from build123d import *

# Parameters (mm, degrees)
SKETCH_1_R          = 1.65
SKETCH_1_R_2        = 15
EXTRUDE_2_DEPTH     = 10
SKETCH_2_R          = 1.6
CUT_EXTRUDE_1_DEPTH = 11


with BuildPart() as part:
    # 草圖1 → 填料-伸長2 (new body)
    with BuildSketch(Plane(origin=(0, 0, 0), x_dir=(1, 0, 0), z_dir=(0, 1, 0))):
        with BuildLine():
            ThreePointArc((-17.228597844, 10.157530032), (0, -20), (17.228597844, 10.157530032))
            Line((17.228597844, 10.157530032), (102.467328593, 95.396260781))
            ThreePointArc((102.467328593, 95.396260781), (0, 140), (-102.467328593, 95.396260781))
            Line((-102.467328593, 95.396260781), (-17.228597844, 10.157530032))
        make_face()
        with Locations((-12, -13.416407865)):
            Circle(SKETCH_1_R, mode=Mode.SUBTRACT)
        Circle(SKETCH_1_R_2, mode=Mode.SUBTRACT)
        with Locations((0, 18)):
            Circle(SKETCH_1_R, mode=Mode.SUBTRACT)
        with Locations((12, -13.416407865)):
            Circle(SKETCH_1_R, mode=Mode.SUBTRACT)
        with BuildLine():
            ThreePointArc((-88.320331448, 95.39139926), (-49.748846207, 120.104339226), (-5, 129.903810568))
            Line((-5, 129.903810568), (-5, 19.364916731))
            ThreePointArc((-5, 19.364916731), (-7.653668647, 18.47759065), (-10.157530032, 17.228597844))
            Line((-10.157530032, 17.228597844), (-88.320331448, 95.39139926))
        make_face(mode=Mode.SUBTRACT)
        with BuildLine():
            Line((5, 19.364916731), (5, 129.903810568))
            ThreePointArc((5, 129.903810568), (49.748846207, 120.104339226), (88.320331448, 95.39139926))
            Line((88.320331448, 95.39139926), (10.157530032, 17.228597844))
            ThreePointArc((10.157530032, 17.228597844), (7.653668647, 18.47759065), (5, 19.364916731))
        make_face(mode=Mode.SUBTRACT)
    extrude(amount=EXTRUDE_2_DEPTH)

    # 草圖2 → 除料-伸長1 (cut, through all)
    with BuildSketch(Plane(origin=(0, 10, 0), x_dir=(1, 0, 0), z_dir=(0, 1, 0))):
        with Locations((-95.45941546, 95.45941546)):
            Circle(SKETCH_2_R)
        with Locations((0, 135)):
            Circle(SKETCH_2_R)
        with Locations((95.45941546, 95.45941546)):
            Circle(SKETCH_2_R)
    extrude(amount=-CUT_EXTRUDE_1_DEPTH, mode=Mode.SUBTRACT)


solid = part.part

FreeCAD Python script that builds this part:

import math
import FreeCAD as App
import Part
import Sketcher

V = App.Vector

doc = App.newDocument("Part")
body = doc.addObject("PartDesign::Body", "Body")

# Sketch on XZ plane
sketch1 = body.newObject("Sketcher::SketchObject", "Sketch")
sketch1.AttachmentSupport = (doc.getObject("XZ_Plane"), [""])
sketch1.MapMode = "FlatFace"
sketch1.addGeometry([
    Part.ArcOfCircle(Part.Circle(V(0, 0, 0), V(0, 0, 1), 20), math.radians(-31), math.radians(211)),  # 0
    Part.LineSegment(V(17.2, -10.2, 0), V(102.5, -95.4, 0)),  # 1
    Part.ArcOfCircle(Part.Circle(V(0, 0, 0), V(0, 0, 1), 140), math.radians(-137), math.radians(-43)),  # 2
    Part.LineSegment(V(-102.5, -95.4, 0), V(-17.2, -10.2, 0)),  # 3
    Part.Circle(V(-12, 13.4, 0), V(0, 0, 1), 1.6),  # 4
    Part.Circle(V(12, 13.4, 0), V(0, 0, 1), 1.6),  # 5
    Part.Circle(V(0, 0, 0), V(0, 0, 1), 15),  # 6
    Part.Circle(V(0, -18, 0), V(0, 0, 1), 1.6),  # 7
    Part.LineSegment(V(-10.2, -17.2, 0), V(-88.3, -95.4, 0)),  # 8
    Part.ArcOfCircle(Part.Circle(V(0, 0, 0), V(0, 0, 1), 130), math.radians(-133), math.radians(-92)),  # 9
    Part.LineSegment(V(-5, -129.9, 0), V(-5, -19.4, 0)),  # 10
    Part.ArcOfCircle(Part.Circle(V(0, 0, 0), V(0, 0, 1), 20), math.radians(-120.52), math.radians(-104.48)),  # 11
    Part.ArcOfCircle(Part.Circle(V(0, 0, 0), V(0, 0, 1), 20), math.radians(-75.52), math.radians(-59.48)),  # 12
    Part.LineSegment(V(5, -19.4, 0), V(5, -129.9, 0)),  # 13
    Part.ArcOfCircle(Part.Circle(V(0, 0, 0), V(0, 0, 1), 130), math.radians(-88), math.radians(-47)),  # 14
    Part.LineSegment(V(88.3, -95.4, 0), V(10.2, -17.2, 0)),  # 15
], False)
sketch1.addConstraint([
    Sketcher.Constraint("Coincident", 0, 1, 1, 1),
    Sketcher.Constraint("Coincident", 1, 2, 2, 2),
    Sketcher.Constraint("Coincident", 2, 1, 3, 1),
    Sketcher.Constraint("Coincident", 3, 2, 0, 2),
    Sketcher.Constraint("Coincident", 8, 2, 9, 1),
    Sketcher.Constraint("Coincident", 9, 2, 10, 1),
    Sketcher.Constraint("Coincident", 10, 2, 11, 2),
    Sketcher.Constraint("Coincident", 11, 1, 8, 1),
    Sketcher.Constraint("Coincident", 12, 1, 13, 1),
    Sketcher.Constraint("Coincident", 13, 2, 14, 1),
    Sketcher.Constraint("Coincident", 14, 2, 15, 1),
    Sketcher.Constraint("Coincident", 15, 2, 12, 2),
    Sketcher.Constraint("Vertical", 10),
    Sketcher.Constraint("Vertical", 13),
    Sketcher.Constraint("Coincident", 0, 3, -1, 1),
    Sketcher.Constraint("Coincident", 2, 3, -1, 1),
    Sketcher.Constraint("Coincident", 6, 3, -1, 1),
    Sketcher.Constraint("Coincident", 9, 3, -1, 1),
    Sketcher.Constraint("Coincident", 11, 3, -1, 1),
    Sketcher.Constraint("Coincident", 12, 3, -1, 1),
    Sketcher.Constraint("Coincident", 14, 3, -1, 1),
    Sketcher.Constraint("Equal", 4, 5),
    Sketcher.Constraint("Equal", 5, 7),
    Sketcher.Constraint("Equal", 0, 11),
    Sketcher.Constraint("Equal", 11, 12),
    Sketcher.Constraint("Equal", 9, 14),
    Sketcher.Constraint("Symmetric", 4, 3, 5, 3, -2),
    Sketcher.Constraint("PointOnObject", 7, 3, -2),
    Sketcher.Constraint("Perpendicular", 1, 3),
    Sketcher.Constraint("Parallel", 3, 8),
    Sketcher.Constraint("Perpendicular", 8, 15),
    Sketcher.Constraint("Horizontal", 1, 2, 2, 1),
    Sketcher.Constraint("Horizontal", 0, 1, 3, 2),
    Sketcher.Constraint("Horizontal", 10, 2, 12, 1),
    Sketcher.Constraint("Horizontal", 8, 2, 14, 2),
    Sketcher.Constraint("Diameter", 6, 30.0),
    Sketcher.Constraint("Radius", 0, 20.0),
    Sketcher.Constraint("Radius", 2, 140.0),
    Sketcher.Constraint("Radius", 9, 130.0),
    Sketcher.Constraint("Diameter", 4, 3.3),
    Sketcher.Constraint("DistanceX", 4, 3, -1, 1, 12.0),
    Sketcher.Constraint("DistanceY", 7, 3, -1, 1, 18.0),
    Sketcher.Constraint("DistanceX", 9, 2, -1, 1, 5.0),
    Sketcher.Constraint("DistanceY", 8, 2, -1, 1, 95.391399),
    Sketcher.Constraint("Distance", 1, 120.545769),
    Sketcher.Constraint("DistanceY", -1, 1, 4, 3, 13.416408),
])
pad1 = body.newObject("PartDesign::Pad", "Pad")
pad1.Profile = sketch1
pad1.Length = 10
pad1.Reversed = True

# Sketch on XZ plane
sketch2 = body.newObject("Sketcher::SketchObject", "Sketch001")
sketch2.AttachmentSupport = (doc.getObject("XZ_Plane"), [""])
sketch2.MapMode = "FlatFace"
sketch2.AttachmentOffset = App.Placement(V(0, 0, -10), App.Rotation())
sketch2.addGeometry([
    Part.Circle(V(-95.5, -95.5, 0), V(0, 0, 1), 1.6),
    Part.Circle(V(0, -135, 0), V(0, 0, 1), 1.6),
    Part.Circle(V(95.5, -95.5, 0), V(0, 0, 1), 1.6),
], False)
sketch2.addConstraint([
    Sketcher.Constraint("Equal", 0, 1),
    Sketcher.Constraint("Equal", 1, 2),
    Sketcher.Constraint("Symmetric", 0, 3, 2, 3, -2),
    Sketcher.Constraint("PointOnObject", 1, 3, -2),
    Sketcher.Constraint("Diameter", 0, 3.2),
    Sketcher.Constraint("DistanceY", 1, 3, -1, 1, 135.0),
    Sketcher.Constraint("DistanceX", 0, 3, 2, 3, 190.918831),
    Sketcher.Constraint("DistanceY", 0, 3, -1, 1, 95.459415),
])
pocket1 = body.newObject("PartDesign::Pocket", "Pocket")
pocket1.Profile = sketch2
pocket1.Type = "ThroughAll"
pocket1.Reversed = True

doc.recompute()
